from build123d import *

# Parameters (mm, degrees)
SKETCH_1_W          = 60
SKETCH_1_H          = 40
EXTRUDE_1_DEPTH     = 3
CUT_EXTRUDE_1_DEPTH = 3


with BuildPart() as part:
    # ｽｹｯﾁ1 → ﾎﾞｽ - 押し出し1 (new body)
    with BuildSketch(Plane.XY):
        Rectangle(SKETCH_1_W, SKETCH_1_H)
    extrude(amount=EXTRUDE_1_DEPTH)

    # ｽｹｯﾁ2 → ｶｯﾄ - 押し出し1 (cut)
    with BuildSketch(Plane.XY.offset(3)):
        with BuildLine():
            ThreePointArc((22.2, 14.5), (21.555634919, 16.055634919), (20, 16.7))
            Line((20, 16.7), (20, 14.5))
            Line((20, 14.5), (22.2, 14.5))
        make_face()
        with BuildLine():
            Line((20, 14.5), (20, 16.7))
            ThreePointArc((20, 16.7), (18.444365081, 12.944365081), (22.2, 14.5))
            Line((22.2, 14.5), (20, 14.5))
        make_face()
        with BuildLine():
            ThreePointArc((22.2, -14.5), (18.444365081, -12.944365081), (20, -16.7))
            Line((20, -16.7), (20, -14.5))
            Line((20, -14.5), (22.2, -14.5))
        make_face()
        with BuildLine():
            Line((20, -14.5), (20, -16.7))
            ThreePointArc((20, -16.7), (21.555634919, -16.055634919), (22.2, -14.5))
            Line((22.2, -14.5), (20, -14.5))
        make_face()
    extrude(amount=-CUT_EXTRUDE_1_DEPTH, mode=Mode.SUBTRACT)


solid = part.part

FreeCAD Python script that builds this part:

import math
import FreeCAD as App
import Part
import Sketcher

V = App.Vector

doc = App.newDocument("Part")
body = doc.addObject("PartDesign::Body", "Body")

# Sketch on XY plane
sketch1 = body.newObject("Sketcher::SketchObject", "Sketch")
sketch1.AttachmentSupport = (doc.getObject("XY_Plane"), [""])
sketch1.MapMode = "FlatFace"
sketch1.addGeometry([
    Part.LineSegment(V(-30, 20, 0), V(-30, -20, 0)),
    Part.LineSegment(V(-30, -20, 0), V(30, -20, 0)),
    Part.LineSegment(V(30, -20, 0), V(30, 20, 0)),
    Part.LineSegment(V(30, 20, 0), V(-30, 20, 0)),
], False)
sketch1.addConstraint([
    Sketcher.Constraint("Coincident", 0, 2, 1, 1),
    Sketcher.Constraint("Coincident", 1, 2, 2, 1),
    Sketcher.Constraint("Coincident", 2, 2, 3, 1),
    Sketcher.Constraint("Coincident", 3, 2, 0, 1),
    Sketcher.Constraint("Vertical", 0),
    Sketcher.Constraint("Horizontal", 1),
    Sketcher.Constraint("Vertical", 2),
    Sketcher.Constraint("Horizontal", 3),
    Sketcher.Constraint("Symmetric", 0, 2, 2, 2, -1, 1),
    Sketcher.Constraint("DistanceX", 1, 1, 1, 2, 60.0),
    Sketcher.Constraint("DistanceY", 0, 2, 0, 1, 40.0),
])
pad1 = body.newObject("PartDesign::Pad", "Pad")
pad1.Profile = sketch1
pad1.Length = 3

# Sketch on XY plane
sketch2 = body.newObject("Sketcher::SketchObject", "Sketch001")
sketch2.AttachmentSupport = (doc.getObject("XY_Plane"), [""])
sketch2.MapMode = "FlatFace"
sketch2.AttachmentOffset = App.Placement(V(0, 0, 3), App.Rotation())
sketch2.addGeometry([
    Part.ArcOfCircle(Part.Circle(V(20, 14.5, 0), V(0, 0, 1), 2.2), math.radians(0), math.radians(90)),
    Part.ArcOfCircle(Part.Circle(V(20, 14.5, 0), V(0, 0, 1), 2.2), math.radians(90), math.radians(360)),
    Part.ArcOfCircle(Part.Circle(V(20, -14.5, 0), V(0, 0, 1), 2.2), math.radians(0), math.radians(270)),
    Part.ArcOfCircle(Part.Circle(V(20, -14.5, 0), V(0, 0, 1), 2.2), math.radians(-90), math.radians(0)),
], False)
sketch2.addConstraint([
    Sketcher.Constraint("Tangent", 0, 1, 1, 2),
    Sketcher.Constraint("Coincident", 1, 1, 0, 2),
    Sketcher.Constraint("Tangent", 2, 1, 3, 2),
    Sketcher.Constraint("Coincident", 3, 1, 2, 2),
    Sketcher.Constraint("Equal", 1, 2),
    Sketcher.Constraint("Symmetric", 0, 3, 2, 3, -1),
    Sketcher.Constraint("Horizontal", 1, 3, 0, 1),
    Sketcher.Constraint("Horizontal", 3, 3, 2, 1),
    Sketcher.Constraint("Vertical", 3, 3, 1, 1),
    Sketcher.Constraint("Vertical", 1, 1, 3, 1),
    Sketcher.Constraint("Radius", 0, 2.2),
    Sketcher.Constraint("DistanceX", -1, 1, 0, 3, 20.0),
    Sketcher.Constraint("DistanceY", 2, 3, 1, 3, 29.0),
])
pocket1 = body.newObject("PartDesign::Pocket", "Pocket")
pocket1.Profile = sketch2
pocket1.Length = 3

doc.recompute()
